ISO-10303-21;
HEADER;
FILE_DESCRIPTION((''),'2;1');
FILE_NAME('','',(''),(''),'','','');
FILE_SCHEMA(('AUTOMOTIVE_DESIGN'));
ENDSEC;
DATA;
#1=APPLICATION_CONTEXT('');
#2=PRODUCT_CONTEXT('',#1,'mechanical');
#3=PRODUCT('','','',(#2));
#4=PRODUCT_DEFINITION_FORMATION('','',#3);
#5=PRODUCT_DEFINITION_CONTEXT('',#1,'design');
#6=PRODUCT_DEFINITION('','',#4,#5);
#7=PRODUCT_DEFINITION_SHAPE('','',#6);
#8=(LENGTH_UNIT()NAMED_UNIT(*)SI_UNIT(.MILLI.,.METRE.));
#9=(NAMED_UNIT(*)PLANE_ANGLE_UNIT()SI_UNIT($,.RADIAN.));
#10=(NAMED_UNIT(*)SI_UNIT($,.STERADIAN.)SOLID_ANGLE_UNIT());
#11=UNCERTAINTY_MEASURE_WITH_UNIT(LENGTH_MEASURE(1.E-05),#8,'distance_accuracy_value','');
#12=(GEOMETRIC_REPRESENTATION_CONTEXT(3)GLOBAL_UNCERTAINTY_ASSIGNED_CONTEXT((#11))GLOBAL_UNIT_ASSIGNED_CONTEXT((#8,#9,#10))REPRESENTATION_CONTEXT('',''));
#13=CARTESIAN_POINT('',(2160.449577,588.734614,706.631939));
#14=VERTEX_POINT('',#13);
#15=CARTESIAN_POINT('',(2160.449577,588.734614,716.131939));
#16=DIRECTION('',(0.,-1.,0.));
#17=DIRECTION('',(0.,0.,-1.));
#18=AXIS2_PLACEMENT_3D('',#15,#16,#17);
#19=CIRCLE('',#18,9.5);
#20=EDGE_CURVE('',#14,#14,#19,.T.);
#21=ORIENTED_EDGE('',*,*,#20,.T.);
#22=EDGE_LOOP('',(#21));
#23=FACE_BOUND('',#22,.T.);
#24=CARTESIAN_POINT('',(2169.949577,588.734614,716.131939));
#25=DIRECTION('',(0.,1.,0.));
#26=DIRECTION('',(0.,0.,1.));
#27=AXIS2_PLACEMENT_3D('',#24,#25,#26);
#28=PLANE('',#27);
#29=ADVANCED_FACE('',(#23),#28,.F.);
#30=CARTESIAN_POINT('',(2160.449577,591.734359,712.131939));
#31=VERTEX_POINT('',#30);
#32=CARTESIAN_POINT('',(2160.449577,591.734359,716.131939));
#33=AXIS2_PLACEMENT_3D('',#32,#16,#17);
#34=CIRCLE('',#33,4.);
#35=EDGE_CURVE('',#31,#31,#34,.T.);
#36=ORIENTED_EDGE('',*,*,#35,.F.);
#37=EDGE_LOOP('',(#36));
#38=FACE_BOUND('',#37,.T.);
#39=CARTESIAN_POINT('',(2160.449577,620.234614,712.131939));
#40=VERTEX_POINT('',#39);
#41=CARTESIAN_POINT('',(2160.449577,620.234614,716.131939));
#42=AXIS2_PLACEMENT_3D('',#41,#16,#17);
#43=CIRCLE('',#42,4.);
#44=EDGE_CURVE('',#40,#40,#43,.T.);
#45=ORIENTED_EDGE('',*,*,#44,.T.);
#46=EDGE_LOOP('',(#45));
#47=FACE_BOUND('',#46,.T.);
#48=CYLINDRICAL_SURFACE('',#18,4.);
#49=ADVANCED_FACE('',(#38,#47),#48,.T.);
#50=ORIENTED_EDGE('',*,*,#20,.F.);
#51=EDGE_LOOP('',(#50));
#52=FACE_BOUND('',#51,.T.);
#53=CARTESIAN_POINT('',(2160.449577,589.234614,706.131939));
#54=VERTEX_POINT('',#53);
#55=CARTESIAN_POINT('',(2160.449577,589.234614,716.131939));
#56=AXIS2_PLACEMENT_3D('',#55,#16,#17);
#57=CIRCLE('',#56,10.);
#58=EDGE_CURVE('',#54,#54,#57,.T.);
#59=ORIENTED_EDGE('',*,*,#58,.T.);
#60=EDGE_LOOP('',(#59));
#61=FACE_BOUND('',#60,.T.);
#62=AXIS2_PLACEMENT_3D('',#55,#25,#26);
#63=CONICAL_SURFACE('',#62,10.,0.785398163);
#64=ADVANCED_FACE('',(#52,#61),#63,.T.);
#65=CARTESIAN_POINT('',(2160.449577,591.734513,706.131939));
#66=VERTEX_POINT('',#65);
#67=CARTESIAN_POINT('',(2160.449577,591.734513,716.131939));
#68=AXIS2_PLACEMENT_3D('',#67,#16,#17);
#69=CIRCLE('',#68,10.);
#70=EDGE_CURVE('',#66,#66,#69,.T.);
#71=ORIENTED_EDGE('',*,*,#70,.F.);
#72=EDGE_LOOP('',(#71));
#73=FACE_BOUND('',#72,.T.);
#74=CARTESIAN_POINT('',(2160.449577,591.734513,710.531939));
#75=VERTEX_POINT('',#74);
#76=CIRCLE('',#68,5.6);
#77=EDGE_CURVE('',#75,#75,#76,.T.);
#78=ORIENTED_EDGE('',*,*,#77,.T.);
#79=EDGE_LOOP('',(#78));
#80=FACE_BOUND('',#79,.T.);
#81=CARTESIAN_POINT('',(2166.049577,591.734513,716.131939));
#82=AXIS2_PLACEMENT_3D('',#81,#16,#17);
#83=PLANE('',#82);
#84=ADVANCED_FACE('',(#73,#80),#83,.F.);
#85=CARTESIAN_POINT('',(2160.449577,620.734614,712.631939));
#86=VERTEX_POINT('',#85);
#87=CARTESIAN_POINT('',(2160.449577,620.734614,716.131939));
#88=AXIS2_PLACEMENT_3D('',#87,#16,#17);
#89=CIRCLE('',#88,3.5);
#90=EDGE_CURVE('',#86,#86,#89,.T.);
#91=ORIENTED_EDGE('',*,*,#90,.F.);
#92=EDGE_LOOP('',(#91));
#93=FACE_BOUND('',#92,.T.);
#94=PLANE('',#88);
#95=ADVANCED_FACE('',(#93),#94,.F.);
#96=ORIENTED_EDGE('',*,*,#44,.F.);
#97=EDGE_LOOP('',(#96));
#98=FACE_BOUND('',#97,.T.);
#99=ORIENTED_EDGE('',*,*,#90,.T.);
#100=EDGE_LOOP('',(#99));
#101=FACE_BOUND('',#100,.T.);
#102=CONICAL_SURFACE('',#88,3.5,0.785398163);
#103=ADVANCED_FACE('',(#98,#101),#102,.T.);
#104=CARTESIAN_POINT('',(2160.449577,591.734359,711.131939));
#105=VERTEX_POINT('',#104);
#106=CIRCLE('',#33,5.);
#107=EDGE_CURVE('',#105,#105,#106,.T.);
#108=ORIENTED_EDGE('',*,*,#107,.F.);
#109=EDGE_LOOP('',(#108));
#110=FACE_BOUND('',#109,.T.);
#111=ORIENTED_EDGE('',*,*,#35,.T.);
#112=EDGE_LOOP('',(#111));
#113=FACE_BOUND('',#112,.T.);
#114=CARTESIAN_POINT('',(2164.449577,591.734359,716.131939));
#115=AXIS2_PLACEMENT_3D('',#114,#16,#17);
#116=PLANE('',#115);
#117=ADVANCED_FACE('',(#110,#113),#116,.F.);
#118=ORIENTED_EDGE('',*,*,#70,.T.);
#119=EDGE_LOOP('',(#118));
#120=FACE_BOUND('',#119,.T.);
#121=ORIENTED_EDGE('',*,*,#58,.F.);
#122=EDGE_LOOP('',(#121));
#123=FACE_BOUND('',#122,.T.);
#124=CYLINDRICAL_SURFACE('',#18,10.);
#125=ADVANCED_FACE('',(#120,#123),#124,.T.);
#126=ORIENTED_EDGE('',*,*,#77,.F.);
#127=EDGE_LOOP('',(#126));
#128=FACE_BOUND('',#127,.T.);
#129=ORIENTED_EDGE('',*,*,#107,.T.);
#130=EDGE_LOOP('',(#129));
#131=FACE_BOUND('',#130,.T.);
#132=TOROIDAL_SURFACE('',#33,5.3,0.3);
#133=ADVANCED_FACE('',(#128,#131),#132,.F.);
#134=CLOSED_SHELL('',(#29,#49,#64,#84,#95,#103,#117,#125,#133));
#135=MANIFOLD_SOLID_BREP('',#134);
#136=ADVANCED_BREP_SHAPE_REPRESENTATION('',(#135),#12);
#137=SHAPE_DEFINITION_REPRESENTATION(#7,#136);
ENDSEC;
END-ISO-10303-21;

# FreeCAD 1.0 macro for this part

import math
import FreeCAD as App
import Part
import Sketcher
from FreeCAD import Vector
Q = App.Units.Quantity

doc = App.newDocument("Part")
params = doc.addObject("Spreadsheet::Sheet", "Params")
for row, (alias, value) in enumerate([
    ("sketch1_radius", "0.3 mm"),
    ("sketch1_width", "1 mm"),
    ("sketch1_height", "32 mm"),
    ("sketch1_width2", "9.5 mm"),
    ("sketch1_width3", "3.5 mm"),
    ("revolution_angle", "360 deg"),
], start=1):
    params.set(f"A{row}", alias)
    params.set(f"B{row}", "=" + value)
    params.setAlias(f"B{row}", alias)

body = doc.addObject("PartDesign::Body", "Body")

sketch1 = body.newObject("Sketcher::SketchObject", "Sketch")
sketch1.AttachmentSupport = (doc.getObject("XY_Plane"), [""])
sketch1.MapMode = "FlatFace"
sketch1.AttachmentOffset = App.Placement(Vector(0, 0, 716.131939), App.Rotation())
sketch1.addGeometry([
    Part.LineSegment(Vector(2169.95, 588.73, 0), Vector(2160.45, 588.73, 0)),
    Part.LineSegment(Vector(2160.45, 588.73, 0), Vector(2160.45, 620.73, 0)),
    Part.LineSegment(Vector(2160.45, 620.73, 0), Vector(2163.95, 620.73, 0)),
    Part.LineSegment(Vector(2163.95, 620.73, 0), Vector(2164.45, 620.23, 0)),
    Part.LineSegment(Vector(2164.45, 620.23, 0), Vector(2164.45, 591.73, 0)),
    Part.LineSegment(Vector(2164.45, 591.73, 0), Vector(2165.45, 591.73, 0)),
    Part.ArcOfCircle(Part.Circle(Vector(2165.75, 591.73, 0), Vector(0, 0, 1), 0.3), math.radians(180), math.radians(360)),
    Part.LineSegment(Vector(2166.05, 591.73, 0), Vector(2170.45, 591.73, 0)),
    Part.LineSegment(Vector(2170.45, 591.73, 0), Vector(2170.45, 589.23, 0)),
    Part.LineSegment(Vector(2170.45, 589.23, 0), Vector(2169.95, 588.73, 0)),
], False)
sketch1.addGeometry(Part.LineSegment(Vector(2160.45, 588.73, 0), Vector(2160.45, 620.73, 0)), True)
sketch1.addConstraint([
    Sketcher.Constraint("Coincident", 0, 2, 1, 1),
    Sketcher.Constraint("Coincident", 1, 2, 2, 1),
    Sketcher.Constraint("Coincident", 2, 2, 3, 1),
    Sketcher.Constraint("Coincident", 3, 2, 4, 1),
    Sketcher.Constraint("Coincident", 4, 2, 5, 1),
    Sketcher.Constraint("Coincident", 5, 2, 6, 1),
    Sketcher.Constraint("Coincident", 6, 2, 7, 1),
    Sketcher.Constraint("Coincident", 7, 2, 8, 1),
    Sketcher.Constraint("Coincident", 8, 2, 9, 1),
    Sketcher.Constraint("Coincident", 9, 2, 0, 1),
    Sketcher.Constraint("Horizontal", 0),
    Sketcher.Constraint("Vertical", 1),
    Sketcher.Constraint("Horizontal", 2),
    Sketcher.Constraint("Vertical", 4),
    Sketcher.Constraint("Horizontal", 5),
    Sketcher.Constraint("Horizontal", 7),
    Sketcher.Constraint("Vertical", 8),
    Sketcher.Constraint("Vertical", 10),
    Sketcher.Constraint("Coincident", 10, 1, 0, 2),
    Sketcher.Constraint("Perpendicular", 3, 9),
    Sketcher.Constraint("Horizontal", 6, 3, 4, 2),
    Sketcher.Constraint("Horizontal", 2, 2, 10, 2),
    Sketcher.Constraint("Equal", 3, 9),
    Sketcher.Constraint("Radius", 6, 0.3),
    Sketcher.Constraint("DistanceX", 5, 1, 5, 2, 1.0),
    Sketcher.Constraint("DistanceY", 1, 1, 1, 2, 32.0),
    Sketcher.Constraint("Angle", 3, Q("-45 deg")),
    Sketcher.Constraint("DistanceX", 0, 2, 0, 1, 9.5),
    Sketcher.Constraint("DistanceX", 2, 1, 2, 2, 3.5),
    Sketcher.Constraint("DistanceX", 1, 2, 3, 2, 4.0),
    Sketcher.Constraint("DistanceY", 8, 2, 8, 1, 2.499899),
    Sketcher.Constraint("DistanceY", 4, 2, 4, 1, 28.500255),
    Sketcher.Constraint("DistanceY", -1, 1, 6, 3, 591.734359),
    Sketcher.Constraint("DistanceX", -1, 1, 6, 3, 2165.749577),
])
sketch1.setExpression("Constraints[23]", "Params.sketch1_radius")
sketch1.setExpression("Constraints[24]", "Params.sketch1_width")
sketch1.setExpression("Constraints[25]", "Params.sketch1_height")
sketch1.setExpression("Constraints[27]", "Params.sketch1_width2")
sketch1.setExpression("Constraints[28]", "Params.sketch1_width3")
revolution = body.newObject("PartDesign::Revolution", "Revolution")
revolution.Profile = sketch1
revolution.ReferenceAxis = (sketch1, ["Axis0"])
revolution.setExpression("Angle", "Params.revolution_angle")

doc.recompute()
